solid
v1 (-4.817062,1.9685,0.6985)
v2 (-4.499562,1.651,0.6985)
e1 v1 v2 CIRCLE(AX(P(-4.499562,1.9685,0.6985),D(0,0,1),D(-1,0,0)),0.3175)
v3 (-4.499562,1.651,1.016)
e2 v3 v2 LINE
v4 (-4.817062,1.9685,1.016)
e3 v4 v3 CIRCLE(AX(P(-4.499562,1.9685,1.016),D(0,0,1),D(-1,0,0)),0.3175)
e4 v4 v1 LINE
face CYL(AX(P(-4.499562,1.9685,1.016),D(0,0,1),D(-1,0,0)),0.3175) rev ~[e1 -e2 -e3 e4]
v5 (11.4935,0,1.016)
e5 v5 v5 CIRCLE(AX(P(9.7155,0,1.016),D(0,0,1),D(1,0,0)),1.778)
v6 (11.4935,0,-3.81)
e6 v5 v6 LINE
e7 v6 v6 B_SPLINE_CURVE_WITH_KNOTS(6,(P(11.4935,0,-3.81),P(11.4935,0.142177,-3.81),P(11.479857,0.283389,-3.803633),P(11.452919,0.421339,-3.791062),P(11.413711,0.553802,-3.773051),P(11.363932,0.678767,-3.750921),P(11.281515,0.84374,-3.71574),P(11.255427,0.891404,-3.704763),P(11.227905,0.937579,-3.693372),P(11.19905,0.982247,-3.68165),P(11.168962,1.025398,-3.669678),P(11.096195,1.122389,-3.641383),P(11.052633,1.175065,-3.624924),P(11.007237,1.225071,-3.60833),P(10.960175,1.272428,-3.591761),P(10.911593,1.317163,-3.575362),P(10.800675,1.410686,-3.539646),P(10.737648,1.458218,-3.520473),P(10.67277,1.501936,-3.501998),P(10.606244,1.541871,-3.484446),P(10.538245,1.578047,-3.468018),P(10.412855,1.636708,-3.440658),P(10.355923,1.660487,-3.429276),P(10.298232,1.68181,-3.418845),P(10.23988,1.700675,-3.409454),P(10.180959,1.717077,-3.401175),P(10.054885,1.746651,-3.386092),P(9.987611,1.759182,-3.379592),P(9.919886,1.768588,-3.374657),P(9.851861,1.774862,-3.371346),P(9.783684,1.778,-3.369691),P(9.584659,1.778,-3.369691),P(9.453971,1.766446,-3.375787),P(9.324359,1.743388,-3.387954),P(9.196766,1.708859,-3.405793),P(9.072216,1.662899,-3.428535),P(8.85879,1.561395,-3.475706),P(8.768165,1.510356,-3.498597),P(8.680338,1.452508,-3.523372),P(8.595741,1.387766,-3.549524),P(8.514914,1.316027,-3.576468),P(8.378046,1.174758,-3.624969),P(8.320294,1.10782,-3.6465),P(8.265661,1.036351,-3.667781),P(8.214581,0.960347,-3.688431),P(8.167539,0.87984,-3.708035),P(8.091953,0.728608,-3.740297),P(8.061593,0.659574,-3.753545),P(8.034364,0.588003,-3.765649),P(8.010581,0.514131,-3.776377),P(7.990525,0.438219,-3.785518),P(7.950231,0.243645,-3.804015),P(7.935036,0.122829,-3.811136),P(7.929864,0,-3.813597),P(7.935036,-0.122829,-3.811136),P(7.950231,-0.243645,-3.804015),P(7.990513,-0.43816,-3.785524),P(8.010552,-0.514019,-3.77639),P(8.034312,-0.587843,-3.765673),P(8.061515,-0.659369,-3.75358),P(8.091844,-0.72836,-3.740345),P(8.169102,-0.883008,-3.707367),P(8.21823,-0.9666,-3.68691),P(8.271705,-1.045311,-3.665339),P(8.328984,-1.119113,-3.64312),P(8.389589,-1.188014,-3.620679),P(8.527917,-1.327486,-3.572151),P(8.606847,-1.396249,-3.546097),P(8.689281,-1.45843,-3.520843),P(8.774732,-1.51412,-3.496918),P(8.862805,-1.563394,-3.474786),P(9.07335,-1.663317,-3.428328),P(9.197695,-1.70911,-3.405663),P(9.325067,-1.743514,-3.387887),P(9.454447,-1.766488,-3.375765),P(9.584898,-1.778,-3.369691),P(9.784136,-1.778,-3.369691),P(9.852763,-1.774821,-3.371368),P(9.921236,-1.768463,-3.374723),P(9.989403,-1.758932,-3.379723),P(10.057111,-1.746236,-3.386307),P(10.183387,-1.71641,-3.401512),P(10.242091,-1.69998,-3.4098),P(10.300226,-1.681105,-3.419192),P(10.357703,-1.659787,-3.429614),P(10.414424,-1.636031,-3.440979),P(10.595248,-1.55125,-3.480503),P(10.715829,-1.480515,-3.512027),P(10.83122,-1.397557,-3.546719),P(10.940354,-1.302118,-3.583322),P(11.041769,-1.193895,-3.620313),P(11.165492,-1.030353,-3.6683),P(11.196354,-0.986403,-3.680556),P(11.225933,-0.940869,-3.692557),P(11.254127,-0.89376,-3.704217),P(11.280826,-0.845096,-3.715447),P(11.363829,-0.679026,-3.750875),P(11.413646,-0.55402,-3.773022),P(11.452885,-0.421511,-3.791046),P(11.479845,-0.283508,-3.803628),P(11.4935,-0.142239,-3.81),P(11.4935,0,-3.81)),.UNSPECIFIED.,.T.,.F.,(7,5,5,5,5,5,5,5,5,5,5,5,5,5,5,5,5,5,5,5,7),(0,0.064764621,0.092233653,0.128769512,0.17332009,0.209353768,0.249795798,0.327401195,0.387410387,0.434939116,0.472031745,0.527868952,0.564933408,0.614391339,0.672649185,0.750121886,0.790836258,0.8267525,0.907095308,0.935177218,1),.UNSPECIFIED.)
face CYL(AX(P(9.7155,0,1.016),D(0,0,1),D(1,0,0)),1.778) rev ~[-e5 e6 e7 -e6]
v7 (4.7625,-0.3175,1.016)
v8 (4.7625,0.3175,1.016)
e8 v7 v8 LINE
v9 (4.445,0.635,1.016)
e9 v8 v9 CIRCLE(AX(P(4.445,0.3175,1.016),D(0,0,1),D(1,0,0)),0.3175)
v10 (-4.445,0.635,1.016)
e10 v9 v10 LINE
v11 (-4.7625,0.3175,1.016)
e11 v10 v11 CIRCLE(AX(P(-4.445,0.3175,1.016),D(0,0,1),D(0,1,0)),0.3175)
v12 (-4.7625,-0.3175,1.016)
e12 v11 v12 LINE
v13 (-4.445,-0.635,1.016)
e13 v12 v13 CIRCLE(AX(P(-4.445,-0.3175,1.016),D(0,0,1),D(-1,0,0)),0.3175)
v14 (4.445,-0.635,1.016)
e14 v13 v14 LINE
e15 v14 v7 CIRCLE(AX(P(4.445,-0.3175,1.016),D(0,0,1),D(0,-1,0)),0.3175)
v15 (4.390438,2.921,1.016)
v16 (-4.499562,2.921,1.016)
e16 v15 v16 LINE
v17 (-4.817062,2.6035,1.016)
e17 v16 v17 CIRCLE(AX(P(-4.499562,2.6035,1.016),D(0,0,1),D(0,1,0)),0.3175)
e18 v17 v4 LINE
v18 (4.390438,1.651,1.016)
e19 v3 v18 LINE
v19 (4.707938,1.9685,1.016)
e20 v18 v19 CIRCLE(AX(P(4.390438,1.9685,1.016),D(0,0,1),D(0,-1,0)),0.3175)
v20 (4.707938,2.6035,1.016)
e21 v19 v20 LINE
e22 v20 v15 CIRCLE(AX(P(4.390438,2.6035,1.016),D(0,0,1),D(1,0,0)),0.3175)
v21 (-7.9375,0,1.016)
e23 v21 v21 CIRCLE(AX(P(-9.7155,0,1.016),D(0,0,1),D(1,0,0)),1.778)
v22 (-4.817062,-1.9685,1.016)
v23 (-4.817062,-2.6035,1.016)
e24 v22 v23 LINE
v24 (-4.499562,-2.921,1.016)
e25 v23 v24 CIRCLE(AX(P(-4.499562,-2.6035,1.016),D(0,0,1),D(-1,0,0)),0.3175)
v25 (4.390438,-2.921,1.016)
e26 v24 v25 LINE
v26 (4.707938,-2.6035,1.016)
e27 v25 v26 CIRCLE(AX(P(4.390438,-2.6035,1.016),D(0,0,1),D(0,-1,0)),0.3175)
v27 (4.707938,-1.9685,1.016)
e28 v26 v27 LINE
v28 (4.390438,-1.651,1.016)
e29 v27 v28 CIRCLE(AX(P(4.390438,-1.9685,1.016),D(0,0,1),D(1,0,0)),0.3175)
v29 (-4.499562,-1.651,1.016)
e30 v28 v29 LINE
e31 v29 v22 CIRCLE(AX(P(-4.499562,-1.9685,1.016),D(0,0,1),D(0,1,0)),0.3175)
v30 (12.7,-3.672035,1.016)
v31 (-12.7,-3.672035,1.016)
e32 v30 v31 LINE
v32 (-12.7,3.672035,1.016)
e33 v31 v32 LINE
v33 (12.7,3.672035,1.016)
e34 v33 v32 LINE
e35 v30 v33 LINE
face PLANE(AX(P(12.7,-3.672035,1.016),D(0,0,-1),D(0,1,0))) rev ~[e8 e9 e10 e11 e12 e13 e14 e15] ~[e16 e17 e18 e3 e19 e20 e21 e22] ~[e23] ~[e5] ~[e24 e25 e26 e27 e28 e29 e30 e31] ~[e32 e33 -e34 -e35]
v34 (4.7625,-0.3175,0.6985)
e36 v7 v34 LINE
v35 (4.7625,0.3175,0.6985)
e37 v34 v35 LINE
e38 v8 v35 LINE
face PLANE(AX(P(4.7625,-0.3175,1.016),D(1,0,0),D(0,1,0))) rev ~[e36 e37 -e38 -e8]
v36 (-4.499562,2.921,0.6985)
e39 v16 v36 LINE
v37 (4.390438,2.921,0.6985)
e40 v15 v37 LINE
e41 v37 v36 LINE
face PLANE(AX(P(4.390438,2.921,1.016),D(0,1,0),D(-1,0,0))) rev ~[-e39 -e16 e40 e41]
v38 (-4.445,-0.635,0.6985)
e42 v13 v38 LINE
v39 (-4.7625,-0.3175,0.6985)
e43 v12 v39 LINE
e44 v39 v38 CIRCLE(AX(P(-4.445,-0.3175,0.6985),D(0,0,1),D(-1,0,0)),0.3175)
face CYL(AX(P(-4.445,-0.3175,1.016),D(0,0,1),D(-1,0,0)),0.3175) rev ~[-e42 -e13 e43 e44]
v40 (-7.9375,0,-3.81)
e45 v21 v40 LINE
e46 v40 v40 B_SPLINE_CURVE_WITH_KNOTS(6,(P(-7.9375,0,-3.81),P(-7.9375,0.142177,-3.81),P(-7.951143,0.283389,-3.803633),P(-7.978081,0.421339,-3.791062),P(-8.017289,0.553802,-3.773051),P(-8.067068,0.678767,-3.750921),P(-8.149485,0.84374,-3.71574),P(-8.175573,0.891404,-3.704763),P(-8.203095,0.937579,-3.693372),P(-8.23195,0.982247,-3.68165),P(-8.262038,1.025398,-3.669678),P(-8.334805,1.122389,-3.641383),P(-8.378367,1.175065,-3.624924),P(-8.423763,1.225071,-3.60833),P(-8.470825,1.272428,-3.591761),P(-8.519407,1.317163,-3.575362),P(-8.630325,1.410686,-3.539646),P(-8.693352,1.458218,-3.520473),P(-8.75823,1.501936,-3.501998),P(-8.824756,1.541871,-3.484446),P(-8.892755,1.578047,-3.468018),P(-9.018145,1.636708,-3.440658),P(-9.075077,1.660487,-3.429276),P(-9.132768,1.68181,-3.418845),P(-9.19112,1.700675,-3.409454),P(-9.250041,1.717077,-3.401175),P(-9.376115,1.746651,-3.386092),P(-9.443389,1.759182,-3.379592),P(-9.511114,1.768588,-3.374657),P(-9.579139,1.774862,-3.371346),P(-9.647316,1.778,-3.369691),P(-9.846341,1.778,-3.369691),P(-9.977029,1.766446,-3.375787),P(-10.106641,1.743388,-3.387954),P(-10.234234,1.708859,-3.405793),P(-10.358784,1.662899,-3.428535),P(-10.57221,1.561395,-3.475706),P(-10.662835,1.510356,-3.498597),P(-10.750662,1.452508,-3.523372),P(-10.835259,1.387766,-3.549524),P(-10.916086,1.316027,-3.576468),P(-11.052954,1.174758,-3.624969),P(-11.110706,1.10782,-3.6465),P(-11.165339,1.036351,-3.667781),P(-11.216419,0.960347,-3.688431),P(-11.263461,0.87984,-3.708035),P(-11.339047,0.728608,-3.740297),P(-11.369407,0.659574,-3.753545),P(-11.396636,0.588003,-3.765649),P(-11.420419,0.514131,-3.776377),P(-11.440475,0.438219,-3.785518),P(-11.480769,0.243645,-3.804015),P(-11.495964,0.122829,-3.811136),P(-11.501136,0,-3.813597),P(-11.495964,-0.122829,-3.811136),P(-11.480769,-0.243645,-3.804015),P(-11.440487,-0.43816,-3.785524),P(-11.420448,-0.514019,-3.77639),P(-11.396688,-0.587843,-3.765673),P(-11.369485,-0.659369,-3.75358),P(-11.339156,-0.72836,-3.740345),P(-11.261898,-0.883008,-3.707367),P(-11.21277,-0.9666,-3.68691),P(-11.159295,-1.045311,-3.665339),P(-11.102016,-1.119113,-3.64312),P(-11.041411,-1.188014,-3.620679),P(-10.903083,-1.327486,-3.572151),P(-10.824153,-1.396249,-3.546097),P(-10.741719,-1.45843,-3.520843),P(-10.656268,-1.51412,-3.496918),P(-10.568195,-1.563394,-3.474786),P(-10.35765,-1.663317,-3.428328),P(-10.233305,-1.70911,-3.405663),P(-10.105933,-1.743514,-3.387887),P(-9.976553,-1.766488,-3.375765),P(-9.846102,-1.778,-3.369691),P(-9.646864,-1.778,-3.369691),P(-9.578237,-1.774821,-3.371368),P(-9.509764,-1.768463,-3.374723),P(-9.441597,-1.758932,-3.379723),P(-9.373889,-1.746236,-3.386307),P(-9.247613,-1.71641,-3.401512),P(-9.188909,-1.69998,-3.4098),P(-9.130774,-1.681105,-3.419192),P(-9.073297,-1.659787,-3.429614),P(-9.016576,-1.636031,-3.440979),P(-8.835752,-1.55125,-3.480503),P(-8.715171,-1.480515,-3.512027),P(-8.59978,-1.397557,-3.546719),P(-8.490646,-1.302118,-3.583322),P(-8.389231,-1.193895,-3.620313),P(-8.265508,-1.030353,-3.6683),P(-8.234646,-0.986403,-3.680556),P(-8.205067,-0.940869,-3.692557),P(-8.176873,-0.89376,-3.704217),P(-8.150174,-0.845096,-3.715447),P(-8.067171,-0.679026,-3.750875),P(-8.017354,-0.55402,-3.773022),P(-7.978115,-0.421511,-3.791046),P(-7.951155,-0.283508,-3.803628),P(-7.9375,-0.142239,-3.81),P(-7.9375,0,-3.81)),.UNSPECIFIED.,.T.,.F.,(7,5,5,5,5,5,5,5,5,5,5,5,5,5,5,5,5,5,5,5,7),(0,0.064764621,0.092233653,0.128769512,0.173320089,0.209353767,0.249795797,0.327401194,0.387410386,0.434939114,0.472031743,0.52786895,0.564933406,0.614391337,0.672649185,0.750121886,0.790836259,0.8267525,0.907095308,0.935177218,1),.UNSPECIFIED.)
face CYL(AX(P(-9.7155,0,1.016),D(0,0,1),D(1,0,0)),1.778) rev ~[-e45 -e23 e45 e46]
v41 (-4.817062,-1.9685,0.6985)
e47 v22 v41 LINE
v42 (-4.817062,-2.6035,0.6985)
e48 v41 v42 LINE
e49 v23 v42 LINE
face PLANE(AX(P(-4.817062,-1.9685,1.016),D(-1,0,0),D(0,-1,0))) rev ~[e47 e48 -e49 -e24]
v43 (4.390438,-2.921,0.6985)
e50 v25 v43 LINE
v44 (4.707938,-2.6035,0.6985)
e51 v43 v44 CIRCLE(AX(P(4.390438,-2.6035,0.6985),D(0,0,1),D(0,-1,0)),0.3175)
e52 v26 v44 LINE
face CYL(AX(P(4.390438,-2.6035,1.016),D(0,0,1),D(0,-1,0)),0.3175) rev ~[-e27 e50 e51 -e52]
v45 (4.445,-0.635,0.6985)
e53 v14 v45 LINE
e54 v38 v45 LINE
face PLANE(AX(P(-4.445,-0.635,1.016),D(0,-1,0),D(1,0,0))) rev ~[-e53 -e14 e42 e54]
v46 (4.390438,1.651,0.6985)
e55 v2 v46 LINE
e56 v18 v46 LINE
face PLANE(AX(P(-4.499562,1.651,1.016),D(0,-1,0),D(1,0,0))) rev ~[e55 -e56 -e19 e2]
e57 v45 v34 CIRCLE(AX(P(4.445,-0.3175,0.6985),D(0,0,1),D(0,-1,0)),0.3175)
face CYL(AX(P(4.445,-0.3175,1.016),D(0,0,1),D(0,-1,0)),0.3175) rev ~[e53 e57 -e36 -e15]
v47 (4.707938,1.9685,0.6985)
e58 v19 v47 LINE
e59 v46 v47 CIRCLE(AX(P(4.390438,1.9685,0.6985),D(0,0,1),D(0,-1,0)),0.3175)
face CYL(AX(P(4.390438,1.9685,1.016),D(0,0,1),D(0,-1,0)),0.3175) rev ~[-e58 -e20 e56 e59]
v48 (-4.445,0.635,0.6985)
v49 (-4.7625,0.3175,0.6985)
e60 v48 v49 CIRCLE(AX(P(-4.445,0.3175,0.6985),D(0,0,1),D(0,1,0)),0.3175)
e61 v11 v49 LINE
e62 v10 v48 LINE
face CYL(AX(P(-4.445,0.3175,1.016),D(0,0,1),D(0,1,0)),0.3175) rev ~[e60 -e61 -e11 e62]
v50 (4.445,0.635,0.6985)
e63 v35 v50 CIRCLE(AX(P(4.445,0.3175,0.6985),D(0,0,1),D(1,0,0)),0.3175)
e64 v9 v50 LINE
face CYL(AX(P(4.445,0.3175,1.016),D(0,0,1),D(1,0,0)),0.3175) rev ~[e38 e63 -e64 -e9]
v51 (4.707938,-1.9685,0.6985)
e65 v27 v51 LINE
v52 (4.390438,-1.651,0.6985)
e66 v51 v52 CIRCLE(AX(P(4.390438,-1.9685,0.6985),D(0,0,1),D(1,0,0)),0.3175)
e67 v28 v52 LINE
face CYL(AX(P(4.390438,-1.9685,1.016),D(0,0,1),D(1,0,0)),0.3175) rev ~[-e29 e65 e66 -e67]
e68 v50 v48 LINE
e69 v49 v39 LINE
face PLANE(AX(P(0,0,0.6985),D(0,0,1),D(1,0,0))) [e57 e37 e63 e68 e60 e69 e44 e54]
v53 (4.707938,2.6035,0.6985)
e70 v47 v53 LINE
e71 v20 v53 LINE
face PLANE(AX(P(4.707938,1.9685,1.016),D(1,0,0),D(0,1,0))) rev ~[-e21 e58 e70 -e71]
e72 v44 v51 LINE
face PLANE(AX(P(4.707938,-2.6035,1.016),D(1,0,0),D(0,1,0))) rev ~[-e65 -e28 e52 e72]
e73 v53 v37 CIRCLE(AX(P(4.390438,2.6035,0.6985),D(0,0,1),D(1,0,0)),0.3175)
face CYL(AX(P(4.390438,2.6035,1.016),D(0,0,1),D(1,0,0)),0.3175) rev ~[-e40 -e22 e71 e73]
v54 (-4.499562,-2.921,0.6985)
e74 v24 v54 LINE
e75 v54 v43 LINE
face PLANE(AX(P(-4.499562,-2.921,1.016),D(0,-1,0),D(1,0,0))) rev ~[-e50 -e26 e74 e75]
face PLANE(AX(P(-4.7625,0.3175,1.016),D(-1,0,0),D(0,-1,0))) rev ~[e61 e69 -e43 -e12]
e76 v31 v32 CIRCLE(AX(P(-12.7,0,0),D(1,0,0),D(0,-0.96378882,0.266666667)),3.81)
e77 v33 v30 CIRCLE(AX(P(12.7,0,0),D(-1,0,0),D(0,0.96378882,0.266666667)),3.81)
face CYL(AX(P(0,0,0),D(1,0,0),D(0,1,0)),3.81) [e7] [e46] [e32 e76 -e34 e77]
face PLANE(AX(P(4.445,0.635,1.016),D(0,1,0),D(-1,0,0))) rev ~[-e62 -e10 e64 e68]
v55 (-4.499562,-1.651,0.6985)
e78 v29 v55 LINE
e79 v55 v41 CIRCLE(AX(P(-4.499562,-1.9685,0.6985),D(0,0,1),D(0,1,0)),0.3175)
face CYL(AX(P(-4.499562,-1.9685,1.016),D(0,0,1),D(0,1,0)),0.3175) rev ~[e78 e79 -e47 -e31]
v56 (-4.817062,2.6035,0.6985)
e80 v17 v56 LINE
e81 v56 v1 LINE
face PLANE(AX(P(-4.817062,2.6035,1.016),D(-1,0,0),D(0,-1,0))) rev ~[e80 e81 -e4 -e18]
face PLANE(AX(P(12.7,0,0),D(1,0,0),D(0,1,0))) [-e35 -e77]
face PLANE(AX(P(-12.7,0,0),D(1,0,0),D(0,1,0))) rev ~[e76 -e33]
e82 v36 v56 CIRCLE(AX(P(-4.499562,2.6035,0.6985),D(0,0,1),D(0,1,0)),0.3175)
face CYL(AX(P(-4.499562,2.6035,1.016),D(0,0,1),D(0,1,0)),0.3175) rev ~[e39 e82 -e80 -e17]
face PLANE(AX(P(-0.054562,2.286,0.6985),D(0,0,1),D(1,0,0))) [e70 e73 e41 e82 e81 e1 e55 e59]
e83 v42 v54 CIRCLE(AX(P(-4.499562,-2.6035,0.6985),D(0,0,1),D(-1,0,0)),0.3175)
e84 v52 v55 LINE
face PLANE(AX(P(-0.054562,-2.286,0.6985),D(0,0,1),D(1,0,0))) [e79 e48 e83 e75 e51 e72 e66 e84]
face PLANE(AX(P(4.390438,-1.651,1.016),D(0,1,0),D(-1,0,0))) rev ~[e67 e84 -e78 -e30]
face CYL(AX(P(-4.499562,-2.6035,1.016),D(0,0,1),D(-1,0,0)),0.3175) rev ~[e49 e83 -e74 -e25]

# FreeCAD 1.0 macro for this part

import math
import FreeCAD as App
import Part
import Sketcher

V = App.Vector
Q = App.Units.Quantity

doc = App.newDocument("Part")
body = doc.addObject("PartDesign::Body", "Body")

# Sketch on YZ plane
sketch1 = body.newObject("Sketcher::SketchObject", "Sketch")
sketch1.AttachmentSupport = (doc.getObject("YZ_Plane"), [""])
sketch1.MapMode = "FlatFace"
sketch1.addGeometry(Part.Circle(V(0, 0, 0), V(0, 0, 1), 3.8), False)
sketch1.addConstraint([
    Sketcher.Constraint("Coincident", 0, 3, -1, 1),
    Sketcher.Constraint("Diameter", 0, Q("0.3 in")),
])
pad1 = body.newObject("PartDesign::Pad", "Pad")
pad1.Profile = sketch1
pad1.Length = Q("1 in")
pad1.Midplane = True

# Sketch on YZ plane
sketch2 = body.newObject("Sketcher::SketchObject", "Sketch001")
sketch2.AttachmentSupport = (doc.getObject("YZ_Plane"), [""])
sketch2.MapMode = "FlatFace"
sketch2.AttachmentOffset = App.Placement(V(0, 0, 0.5 * 25.4), App.Rotation())
sketch2.addGeometry([
    Part.ArcOfCircle(Part.Circle(V(0, 0, 0), V(0, 0, 1), 3.8), math.radians(15), math.radians(165)),
    Part.LineSegment(V(-3.7, 1, 0), V(3.7, 1, 0)),
], False)
sketch2.addConstraint([
    Sketcher.Constraint("Coincident", 0, 1, 1, 2),
    Sketcher.Constraint("Coincident", 1, 1, 0, 2),
    Sketcher.Constraint("Horizontal", 1),
    Sketcher.Constraint("Coincident", 0, 3, -1, 1),
    Sketcher.Constraint("Radius", 0, Q("0.15 in")),
    Sketcher.Constraint("DistanceY", -1, 1, 0, 1, Q("0.04 in")),
])
pocket1 = body.newObject("PartDesign::Pocket", "Pocket")
pocket1.Profile = sketch2
pocket1.Length = Q("1 in")

# Sketch on XY plane
sketch3 = body.newObject("Sketcher::SketchObject", "Sketch002")
sketch3.AttachmentSupport = (doc.getObject("XY_Plane"), [""])
sketch3.MapMode = "FlatFace"
sketch3.AttachmentOffset = App.Placement(V(0, 0, 0.04 * 25.4), App.Rotation())
sketch3.addGeometry([
    Part.Circle(V(-9.7, 0, 0), V(0, 0, 1), 1.8),
    Part.Circle(V(9.7, 0, 0), V(0, 0, 1), 1.8),
], False)
sketch3.addConstraint([
    Sketcher.Constraint("Equal", 0, 1),
    Sketcher.Constraint("Symmetric", 0, 3, 1, 3, -1, 1),
    Sketcher.Constraint("PointOnObject", 0, 3, -1),
    Sketcher.Constraint("Diameter", 0, Q("0.14 in")),
    Sketcher.Constraint("DistanceX", 0, 3, 1, 3, Q("0.765 in")),
])
pocket2 = body.newObject("PartDesign::Pocket", "Pocket001")
pocket2.Profile = sketch3
pocket2.Length = Q("1 in")

# Sketch on XY plane
sketch4 = body.newObject("Sketcher::SketchObject", "Sketch003")
sketch4.AttachmentSupport = (doc.getObject("XY_Plane"), [""])
sketch4.MapMode = "FlatFace"
sketch4.AttachmentOffset = App.Placement(V(0, 0, 0.04 * 25.4), App.Rotation())
sketch4.addGeometry([
    Part.LineSegment(V(-4.5, 1.65, 0), V(4.39, 1.65, 0)),  # 0
    Part.ArcOfCircle(Part.Circle(V(4.39, 1.97, 0), V(0, 0, 1), 0.32), math.radians(-90), math.radians(0)),  # 1
    Part.LineSegment(V(4.71, 1.97, 0), V(4.71, 2.6, 0)),  # 2
    Part.ArcOfCircle(Part.Circle(V(4.39, 2.6, 0), V(0, 0, 1), 0.32), math.radians(0), math.radians(90)),  # 3
    Part.LineSegment(V(4.39, 2.92, 0), V(-4.5, 2.92, 0)),  # 4
    Part.ArcOfCircle(Part.Circle(V(-4.5, 2.6, 0), V(0, 0, 1), 0.32), math.radians(90), math.radians(180)),  # 5
    Part.LineSegment(V(-4.82, 2.6, 0), V(-4.82, 1.97, 0)),  # 6
    Part.ArcOfCircle(Part.Circle(V(-4.5, 1.97, 0), V(0, 0, 1), 0.32), math.radians(180), math.radians(270)),  # 7
    Part.ArcOfCircle(Part.Circle(V(4.45, 0.32, 0), V(0, 0, 1), 0.32), math.radians(0), math.radians(90)),  # 8
    Part.LineSegment(V(4.45, 0.64, 0), V(-4.45, 0.64, 0)),  # 9
    Part.ArcOfCircle(Part.Circle(V(-4.45, 0.32, 0), V(0, 0, 1), 0.32), math.radians(90), math.radians(180)),  # 10
    Part.LineSegment(V(-4.76, 0.32, 0), V(-4.76, -0.32, 0)),  # 11
    Part.ArcOfCircle(Part.Circle(V(-4.45, -0.32, 0), V(0, 0, 1), 0.32), math.radians(180), math.radians(270)),  # 12
    Part.LineSegment(V(-4.45, -0.64, 0), V(4.45, -0.64, 0)),  # 13
    Part.ArcOfCircle(Part.Circle(V(4.45, -0.32, 0), V(0, 0, 1), 0.32), math.radians(-90), math.radians(0)),  # 14
    Part.LineSegment(V(4.76, -0.32, 0), V(4.76, 0.32, 0)),  # 15
    Part.ArcOfCircle(Part.Circle(V(4.39, -1.97, 0), V(0, 0, 1), 0.32), math.radians(0), math.radians(90)),  # 16
    Part.LineSegment(V(4.39, -1.65, 0), V(-4.5, -1.65, 0)),  # 17
    Part.ArcOfCircle(Part.Circle(V(-4.5, -1.97, 0), V(0, 0, 1), 0.32), math.radians(90), math.radians(180)),  # 18
    Part.LineSegment(V(-4.82, -1.97, 0), V(-4.82, -2.6, 0)),  # 19
    Part.ArcOfCircle(Part.Circle(V(-4.5, -2.6, 0), V(0, 0, 1), 0.32), math.radians(180), math.radians(270)),  # 20
    Part.LineSegment(V(-4.5, -2.92, 0), V(4.39, -2.92, 0)),  # 21
    Part.ArcOfCircle(Part.Circle(V(4.39, -2.6, 0), V(0, 0, 1), 0.32), math.radians(-90), math.radians(0)),  # 22
    Part.LineSegment(V(4.71, -2.6, 0), V(4.71, -1.97, 0)),  # 23
], False)
sketch4.addConstraint([
    Sketcher.Constraint("Tangent", 0, 2, 1, 1),
    Sketcher.Constraint("Tangent", 1, 2, 2, 1),
    Sketcher.Constraint("Tangent", 2, 2, 3, 1),
    Sketcher.Constraint("Tangent", 3, 2, 4, 1),
    Sketcher.Constraint("Tangent", 4, 2, 5, 1),
    Sketcher.Constraint("Tangent", 5, 2, 6, 1),
    Sketcher.Constraint("Tangent", 6, 2, 7, 1),
    Sketcher.Constraint("Tangent", 7, 2, 0, 1),
    Sketcher.Constraint("Tangent", 8, 2, 9, 1),
    Sketcher.Constraint("Tangent", 9, 2, 10, 1),
    Sketcher.Constraint("Tangent", 10, 2, 11, 1),
    Sketcher.Constraint("Tangent", 11, 2, 12, 1),
    Sketcher.Constraint("Tangent", 12, 2, 13, 1),
    Sketcher.Constraint("Tangent", 13, 2, 14, 1),
    Sketcher.Constraint("Tangent", 14, 2, 15, 1),
    Sketcher.Constraint("Tangent", 15, 2, 8, 1),
    Sketcher.Constraint("Tangent", 16, 2, 17, 1),
    Sketcher.Constraint("Tangent", 17, 2, 18, 1),
    Sketcher.Constraint("Tangent", 18, 2, 19, 1),
    Sketcher.Constraint("Tangent", 19, 2, 20, 1),
    Sketcher.Constraint("Tangent", 20, 2, 21, 1),
    Sketcher.Constraint("Tangent", 21, 2, 22, 1),
    Sketcher.Constraint("Tangent", 22, 2, 23, 1),
    Sketcher.Constraint("Tangent", 23, 2, 16, 1),
    Sketcher.Constraint("Horizontal", 0),
    Sketcher.Constraint("Vertical", 2),
    Sketcher.Constraint("Horizontal", 4),
    Sketcher.Constraint("Vertical", 6),
    Sketcher.Constraint("Horizontal", 9),
    Sketcher.Constraint("Vertical", 11),
    Sketcher.Constraint("Horizontal", 13),
    Sketcher.Constraint("Vertical", 15),
    Sketcher.Constraint("Horizontal", 17),
    Sketcher.Constraint("Vertical", 19),
    Sketcher.Constraint("Horizontal", 21),
    Sketcher.Constraint("Vertical", 23),
    Sketcher.Constraint("Equal", 1, 3),
    Sketcher.Constraint("Equal", 3, 5),
    Sketcher.Constraint("Equal", 5, 7),
    Sketcher.Constraint("Equal", 7, 8),
    Sketcher.Constraint("Equal", 8, 10),
    Sketcher.Constraint("Equal", 10, 12),
    Sketcher.Constraint("Equal", 12, 14),
    Sketcher.Constraint("Equal", 14, 16),
    Sketcher.Constraint("Equal", 16, 18),
    Sketcher.Constraint("Equal", 18, 20),
    Sketcher.Constraint("Equal", 20, 22),
    Sketcher.Constraint("Symmetric", 8, 3, 12, 3, -1, 1),
    Sketcher.Constraint("Symmetric", 1, 3, 16, 3, -1),
    Sketcher.Constraint("Symmetric", 5, 3, 20, 3, -1),
    Sketcher.Constraint("Equal", 4, 9),
    Sketcher.Constraint("Equal", 6, 11),
    Sketcher.Constraint("DistanceX", 0, 1, 0, 2, Q("0.35 in")),
    Sketcher.Constraint("Radius", 1, Q("0.0125 in")),
    Sketcher.Constraint("DistanceY", 2, 1, 2, 2, Q("0.025 in")),
    Sketcher.Constraint("DistanceY", 8, 3, 3, 3, Q("0.09 in")),
    Sketcher.Constraint("DistanceX", -1, 1, 1, 3, Q("4.390439 mm")),
])
pocket3 = body.newObject("PartDesign::Pocket", "Pocket002")
pocket3.Profile = sketch4
pocket3.Length = Q("0.0125 in")

doc.recompute()
